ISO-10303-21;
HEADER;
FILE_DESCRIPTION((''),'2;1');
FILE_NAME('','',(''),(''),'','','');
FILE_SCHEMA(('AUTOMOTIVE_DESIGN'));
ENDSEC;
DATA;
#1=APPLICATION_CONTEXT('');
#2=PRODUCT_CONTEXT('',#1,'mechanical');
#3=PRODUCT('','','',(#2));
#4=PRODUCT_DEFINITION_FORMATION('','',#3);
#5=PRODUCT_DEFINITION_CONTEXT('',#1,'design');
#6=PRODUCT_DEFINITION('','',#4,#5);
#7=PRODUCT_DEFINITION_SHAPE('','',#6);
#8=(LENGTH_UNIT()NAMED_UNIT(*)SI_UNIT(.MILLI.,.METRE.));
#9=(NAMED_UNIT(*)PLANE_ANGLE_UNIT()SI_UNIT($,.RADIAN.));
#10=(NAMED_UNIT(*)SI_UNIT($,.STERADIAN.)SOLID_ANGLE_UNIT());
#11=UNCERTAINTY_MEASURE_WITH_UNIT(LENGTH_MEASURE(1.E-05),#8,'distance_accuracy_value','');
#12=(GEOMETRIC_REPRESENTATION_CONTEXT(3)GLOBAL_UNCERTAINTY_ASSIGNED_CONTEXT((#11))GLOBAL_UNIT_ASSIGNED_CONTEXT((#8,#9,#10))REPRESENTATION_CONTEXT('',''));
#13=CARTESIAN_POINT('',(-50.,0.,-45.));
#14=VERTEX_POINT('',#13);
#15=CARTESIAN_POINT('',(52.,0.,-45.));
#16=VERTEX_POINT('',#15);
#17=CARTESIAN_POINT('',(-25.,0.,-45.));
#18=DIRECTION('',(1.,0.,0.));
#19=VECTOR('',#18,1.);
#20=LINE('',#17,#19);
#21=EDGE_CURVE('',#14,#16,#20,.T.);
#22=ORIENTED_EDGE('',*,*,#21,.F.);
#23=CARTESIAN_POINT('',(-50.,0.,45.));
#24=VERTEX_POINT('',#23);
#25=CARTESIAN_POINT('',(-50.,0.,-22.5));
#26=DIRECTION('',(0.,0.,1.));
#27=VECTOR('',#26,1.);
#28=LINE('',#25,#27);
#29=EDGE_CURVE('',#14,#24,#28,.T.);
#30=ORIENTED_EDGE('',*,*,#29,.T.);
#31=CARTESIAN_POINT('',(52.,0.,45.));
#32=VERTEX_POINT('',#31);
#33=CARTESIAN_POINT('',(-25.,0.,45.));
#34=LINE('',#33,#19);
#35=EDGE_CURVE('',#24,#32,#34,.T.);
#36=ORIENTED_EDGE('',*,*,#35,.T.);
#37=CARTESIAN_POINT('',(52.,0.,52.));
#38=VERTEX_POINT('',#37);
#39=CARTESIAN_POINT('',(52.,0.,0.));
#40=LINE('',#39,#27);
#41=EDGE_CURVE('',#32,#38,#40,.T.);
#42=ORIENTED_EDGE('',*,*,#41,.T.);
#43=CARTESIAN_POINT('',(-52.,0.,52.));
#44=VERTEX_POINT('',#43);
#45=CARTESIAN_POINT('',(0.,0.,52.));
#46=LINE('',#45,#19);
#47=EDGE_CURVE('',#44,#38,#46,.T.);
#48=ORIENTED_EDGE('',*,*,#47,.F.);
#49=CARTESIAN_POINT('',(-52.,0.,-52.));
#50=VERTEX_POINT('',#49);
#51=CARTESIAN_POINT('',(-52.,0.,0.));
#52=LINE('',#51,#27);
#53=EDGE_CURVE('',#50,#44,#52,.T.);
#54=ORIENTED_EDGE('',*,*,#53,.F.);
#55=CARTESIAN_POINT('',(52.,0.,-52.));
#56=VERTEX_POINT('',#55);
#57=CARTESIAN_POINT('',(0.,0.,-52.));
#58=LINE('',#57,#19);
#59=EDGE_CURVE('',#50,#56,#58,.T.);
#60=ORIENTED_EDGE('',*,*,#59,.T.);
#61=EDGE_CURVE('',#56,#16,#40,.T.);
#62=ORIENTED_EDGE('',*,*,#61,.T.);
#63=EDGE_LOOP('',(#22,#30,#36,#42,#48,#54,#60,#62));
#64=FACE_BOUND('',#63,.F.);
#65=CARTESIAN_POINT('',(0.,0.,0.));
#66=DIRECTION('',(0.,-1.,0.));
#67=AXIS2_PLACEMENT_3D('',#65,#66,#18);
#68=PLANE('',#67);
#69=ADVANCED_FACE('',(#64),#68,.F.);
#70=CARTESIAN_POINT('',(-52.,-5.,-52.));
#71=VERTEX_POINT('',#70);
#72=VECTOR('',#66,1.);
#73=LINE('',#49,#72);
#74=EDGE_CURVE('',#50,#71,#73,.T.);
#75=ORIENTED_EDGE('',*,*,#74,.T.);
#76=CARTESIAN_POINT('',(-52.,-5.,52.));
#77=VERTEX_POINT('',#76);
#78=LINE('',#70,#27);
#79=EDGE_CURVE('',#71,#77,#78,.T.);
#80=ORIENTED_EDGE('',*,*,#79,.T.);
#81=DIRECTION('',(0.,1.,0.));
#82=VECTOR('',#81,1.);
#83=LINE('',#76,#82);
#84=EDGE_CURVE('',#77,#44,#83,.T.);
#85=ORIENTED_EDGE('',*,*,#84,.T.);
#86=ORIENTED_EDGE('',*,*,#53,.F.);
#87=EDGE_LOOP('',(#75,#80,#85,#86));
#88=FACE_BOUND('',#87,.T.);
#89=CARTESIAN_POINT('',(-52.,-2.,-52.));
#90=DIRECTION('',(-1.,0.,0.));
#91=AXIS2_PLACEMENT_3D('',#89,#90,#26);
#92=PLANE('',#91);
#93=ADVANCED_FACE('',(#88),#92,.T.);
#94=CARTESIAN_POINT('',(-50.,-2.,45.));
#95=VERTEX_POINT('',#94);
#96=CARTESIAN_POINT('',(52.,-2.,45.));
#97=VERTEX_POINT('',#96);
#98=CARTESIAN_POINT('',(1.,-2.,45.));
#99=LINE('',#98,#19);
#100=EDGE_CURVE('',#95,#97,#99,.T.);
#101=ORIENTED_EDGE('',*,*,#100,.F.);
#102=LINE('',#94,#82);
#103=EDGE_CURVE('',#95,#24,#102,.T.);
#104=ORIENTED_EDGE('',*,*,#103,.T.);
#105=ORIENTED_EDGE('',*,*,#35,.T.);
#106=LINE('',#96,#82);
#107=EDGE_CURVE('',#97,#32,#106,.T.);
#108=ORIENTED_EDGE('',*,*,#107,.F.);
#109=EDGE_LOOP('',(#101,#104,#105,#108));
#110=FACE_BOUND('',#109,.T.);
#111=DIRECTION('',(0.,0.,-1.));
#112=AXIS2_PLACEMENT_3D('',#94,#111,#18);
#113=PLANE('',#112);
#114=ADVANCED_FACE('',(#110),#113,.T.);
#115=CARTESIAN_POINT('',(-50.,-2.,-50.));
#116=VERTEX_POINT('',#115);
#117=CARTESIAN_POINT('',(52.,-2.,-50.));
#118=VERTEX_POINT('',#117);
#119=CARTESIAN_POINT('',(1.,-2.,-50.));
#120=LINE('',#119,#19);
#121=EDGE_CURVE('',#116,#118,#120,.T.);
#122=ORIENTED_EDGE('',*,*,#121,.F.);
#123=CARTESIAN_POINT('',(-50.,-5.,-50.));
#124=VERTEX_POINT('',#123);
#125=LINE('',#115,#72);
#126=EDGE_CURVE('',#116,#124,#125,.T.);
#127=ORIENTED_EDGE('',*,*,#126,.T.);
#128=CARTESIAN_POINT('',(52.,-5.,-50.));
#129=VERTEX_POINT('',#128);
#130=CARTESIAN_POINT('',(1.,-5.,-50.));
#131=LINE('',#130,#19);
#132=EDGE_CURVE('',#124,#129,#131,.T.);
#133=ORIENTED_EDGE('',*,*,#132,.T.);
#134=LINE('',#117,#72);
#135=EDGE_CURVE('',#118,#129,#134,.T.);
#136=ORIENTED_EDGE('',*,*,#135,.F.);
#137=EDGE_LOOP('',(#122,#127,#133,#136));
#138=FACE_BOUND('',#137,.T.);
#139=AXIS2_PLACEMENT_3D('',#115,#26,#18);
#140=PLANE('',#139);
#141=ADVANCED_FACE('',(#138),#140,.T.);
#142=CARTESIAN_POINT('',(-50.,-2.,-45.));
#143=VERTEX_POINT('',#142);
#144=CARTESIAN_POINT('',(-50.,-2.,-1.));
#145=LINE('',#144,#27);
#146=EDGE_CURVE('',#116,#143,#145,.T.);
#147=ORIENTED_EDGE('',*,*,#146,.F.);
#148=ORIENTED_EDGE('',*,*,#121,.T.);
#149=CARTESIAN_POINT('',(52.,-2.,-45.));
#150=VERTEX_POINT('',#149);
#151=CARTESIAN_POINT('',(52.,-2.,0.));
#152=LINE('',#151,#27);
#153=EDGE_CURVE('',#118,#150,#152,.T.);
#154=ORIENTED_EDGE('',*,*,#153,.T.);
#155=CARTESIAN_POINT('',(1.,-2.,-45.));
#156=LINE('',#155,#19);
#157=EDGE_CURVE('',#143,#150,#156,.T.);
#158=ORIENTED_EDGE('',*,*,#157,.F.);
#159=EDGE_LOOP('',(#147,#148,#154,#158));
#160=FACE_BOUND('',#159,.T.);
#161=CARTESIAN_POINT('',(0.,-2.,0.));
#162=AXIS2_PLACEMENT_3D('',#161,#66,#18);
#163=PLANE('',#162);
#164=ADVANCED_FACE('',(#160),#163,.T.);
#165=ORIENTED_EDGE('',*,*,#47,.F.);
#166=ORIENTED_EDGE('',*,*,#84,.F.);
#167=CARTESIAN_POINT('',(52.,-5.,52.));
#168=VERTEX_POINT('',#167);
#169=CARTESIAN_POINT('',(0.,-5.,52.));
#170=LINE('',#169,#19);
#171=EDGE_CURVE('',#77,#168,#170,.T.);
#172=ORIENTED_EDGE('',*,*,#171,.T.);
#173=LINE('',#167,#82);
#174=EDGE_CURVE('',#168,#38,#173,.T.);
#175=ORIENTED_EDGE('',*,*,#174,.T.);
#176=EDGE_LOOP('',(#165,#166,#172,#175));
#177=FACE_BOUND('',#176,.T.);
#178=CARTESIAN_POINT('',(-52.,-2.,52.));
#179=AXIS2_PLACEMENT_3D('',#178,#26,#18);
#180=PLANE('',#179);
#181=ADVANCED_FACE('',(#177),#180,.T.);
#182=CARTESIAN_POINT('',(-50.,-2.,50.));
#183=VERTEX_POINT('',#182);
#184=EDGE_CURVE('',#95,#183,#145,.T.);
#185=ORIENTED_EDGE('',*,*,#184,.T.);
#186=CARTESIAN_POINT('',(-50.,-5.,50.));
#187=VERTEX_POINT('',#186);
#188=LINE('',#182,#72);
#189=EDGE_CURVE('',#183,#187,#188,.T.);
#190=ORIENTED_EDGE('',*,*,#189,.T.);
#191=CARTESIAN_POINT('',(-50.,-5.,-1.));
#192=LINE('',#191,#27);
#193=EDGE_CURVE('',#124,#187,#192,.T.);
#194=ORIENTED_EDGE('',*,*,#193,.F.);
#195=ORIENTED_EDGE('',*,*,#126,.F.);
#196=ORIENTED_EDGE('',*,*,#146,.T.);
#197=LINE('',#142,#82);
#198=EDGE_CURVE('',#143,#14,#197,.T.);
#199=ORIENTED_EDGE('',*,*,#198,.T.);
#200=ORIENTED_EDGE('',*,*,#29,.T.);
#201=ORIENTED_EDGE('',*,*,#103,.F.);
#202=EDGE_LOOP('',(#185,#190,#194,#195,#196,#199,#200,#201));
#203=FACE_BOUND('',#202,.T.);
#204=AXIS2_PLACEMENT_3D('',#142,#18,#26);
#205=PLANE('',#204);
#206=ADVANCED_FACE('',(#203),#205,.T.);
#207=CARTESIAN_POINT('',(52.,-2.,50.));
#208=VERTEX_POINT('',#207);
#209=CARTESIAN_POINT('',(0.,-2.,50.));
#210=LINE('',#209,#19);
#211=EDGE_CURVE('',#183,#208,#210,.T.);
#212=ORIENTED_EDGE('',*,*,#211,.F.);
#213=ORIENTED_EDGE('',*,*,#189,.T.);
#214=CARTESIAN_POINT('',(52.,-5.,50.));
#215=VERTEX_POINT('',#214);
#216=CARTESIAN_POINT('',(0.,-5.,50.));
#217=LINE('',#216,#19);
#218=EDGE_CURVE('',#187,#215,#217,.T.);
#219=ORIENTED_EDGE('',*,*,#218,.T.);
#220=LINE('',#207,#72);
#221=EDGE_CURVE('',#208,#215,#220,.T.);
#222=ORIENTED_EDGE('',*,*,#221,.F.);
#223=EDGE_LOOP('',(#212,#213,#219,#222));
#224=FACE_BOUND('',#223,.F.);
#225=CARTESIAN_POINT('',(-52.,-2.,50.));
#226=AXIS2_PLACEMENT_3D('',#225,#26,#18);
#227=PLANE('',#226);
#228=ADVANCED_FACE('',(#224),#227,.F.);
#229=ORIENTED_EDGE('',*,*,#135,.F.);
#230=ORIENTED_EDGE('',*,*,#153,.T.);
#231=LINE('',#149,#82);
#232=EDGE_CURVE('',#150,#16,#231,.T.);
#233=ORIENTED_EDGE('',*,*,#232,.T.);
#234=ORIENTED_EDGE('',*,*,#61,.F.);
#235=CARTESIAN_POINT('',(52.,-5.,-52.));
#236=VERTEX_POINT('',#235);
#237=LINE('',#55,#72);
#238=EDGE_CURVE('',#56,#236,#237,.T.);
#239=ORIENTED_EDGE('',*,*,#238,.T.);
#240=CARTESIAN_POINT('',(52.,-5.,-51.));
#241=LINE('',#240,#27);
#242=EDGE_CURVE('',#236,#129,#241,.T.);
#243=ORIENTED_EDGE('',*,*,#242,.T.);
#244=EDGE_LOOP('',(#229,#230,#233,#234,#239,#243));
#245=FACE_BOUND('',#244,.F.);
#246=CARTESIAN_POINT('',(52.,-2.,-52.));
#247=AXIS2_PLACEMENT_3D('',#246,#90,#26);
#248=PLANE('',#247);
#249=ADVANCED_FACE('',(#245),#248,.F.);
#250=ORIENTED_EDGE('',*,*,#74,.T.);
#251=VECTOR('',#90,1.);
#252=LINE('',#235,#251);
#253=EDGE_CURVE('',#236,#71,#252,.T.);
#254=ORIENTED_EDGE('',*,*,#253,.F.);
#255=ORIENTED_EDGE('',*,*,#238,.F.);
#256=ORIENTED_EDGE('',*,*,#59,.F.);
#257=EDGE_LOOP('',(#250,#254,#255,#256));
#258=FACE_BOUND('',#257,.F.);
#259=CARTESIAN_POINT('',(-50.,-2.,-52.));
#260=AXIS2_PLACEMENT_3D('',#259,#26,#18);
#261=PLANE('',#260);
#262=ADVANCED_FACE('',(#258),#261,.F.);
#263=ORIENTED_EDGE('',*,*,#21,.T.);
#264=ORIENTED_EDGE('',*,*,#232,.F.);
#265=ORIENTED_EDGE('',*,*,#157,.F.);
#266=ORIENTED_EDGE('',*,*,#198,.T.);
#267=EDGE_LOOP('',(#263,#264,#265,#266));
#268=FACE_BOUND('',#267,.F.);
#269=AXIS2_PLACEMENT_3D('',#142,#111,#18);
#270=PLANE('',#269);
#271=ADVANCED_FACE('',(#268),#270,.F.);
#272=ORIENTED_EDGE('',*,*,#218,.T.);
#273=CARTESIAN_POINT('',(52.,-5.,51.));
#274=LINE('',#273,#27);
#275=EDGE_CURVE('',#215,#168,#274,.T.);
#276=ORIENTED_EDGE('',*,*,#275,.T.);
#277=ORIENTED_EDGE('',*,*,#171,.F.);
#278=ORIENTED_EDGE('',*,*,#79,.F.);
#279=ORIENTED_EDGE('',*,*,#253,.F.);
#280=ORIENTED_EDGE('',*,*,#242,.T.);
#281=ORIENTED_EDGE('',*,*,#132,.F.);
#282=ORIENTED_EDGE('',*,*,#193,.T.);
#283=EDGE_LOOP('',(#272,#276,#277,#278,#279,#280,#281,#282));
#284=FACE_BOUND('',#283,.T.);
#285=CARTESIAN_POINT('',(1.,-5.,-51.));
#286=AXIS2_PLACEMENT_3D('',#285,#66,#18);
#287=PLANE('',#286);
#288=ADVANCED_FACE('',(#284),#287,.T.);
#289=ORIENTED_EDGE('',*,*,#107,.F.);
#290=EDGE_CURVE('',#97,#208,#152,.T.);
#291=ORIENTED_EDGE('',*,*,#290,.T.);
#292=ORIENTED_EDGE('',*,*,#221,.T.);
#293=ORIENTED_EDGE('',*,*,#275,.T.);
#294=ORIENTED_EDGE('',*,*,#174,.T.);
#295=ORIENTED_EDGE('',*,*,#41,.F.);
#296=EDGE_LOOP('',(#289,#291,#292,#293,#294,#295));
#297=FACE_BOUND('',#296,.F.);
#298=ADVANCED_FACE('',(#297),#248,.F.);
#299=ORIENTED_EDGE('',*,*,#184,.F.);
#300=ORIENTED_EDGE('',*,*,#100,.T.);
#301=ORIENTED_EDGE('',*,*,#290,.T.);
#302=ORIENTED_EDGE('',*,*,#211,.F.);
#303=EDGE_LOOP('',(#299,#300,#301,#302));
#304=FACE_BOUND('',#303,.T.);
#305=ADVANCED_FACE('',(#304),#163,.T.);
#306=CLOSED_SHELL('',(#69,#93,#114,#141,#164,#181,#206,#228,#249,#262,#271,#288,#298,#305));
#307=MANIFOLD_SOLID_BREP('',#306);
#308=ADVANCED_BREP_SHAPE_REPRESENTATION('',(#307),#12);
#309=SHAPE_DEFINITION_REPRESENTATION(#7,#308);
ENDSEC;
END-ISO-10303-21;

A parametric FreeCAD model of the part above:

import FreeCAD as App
import Part
import Sketcher
from FreeCAD import Vector

doc = App.newDocument("Part")
body = doc.addObject("PartDesign::Body", "Body")

# Sketch on XZ plane
sketch1 = body.newObject("Sketcher::SketchObject", "Sketch")
sketch1.AttachmentSupport = (doc.getObject("XZ_Plane"), [""])
sketch1.MapMode = "FlatFace"
sketch1.addGeometry([
    Part.LineSegment(Vector(-52, 52, 0), Vector(-52, -52, 0)),
    Part.LineSegment(Vector(-52, -52, 0), Vector(52, -52, 0)),
    Part.LineSegment(Vector(52, -52, 0), Vector(52, 52, 0)),
    Part.LineSegment(Vector(52, 52, 0), Vector(-52, 52, 0)),
], False)
sketch1.addConstraint([
    Sketcher.Constraint("Coincident", 0, 2, 1, 1),
    Sketcher.Constraint("Coincident", 1, 2, 2, 1),
    Sketcher.Constraint("Coincident", 2, 2, 3, 1),
    Sketcher.Constraint("Coincident", 3, 2, 0, 1),
    Sketcher.Constraint("Vertical", 0),
    Sketcher.Constraint("Horizontal", 1),
    Sketcher.Constraint("Vertical", 2),
    Sketcher.Constraint("Horizontal", 3),
    Sketcher.Constraint("Symmetric", 0, 2, 2, 2, -1, 1),
    Sketcher.Constraint("Equal", 3, 0),
    Sketcher.Constraint("DistanceX", 1, 1, 1, 2, 104.0),
])
pad1 = body.newObject("PartDesign::Pad", "Pad")
pad1.Profile = sketch1
pad1.Length = 2

# Sketch on XZ plane
sketch2 = body.newObject("Sketcher::SketchObject", "Sketch001")
sketch2.AttachmentSupport = (doc.getObject("XZ_Plane"), [""])
sketch2.MapMode = "FlatFace"
sketch2.AttachmentOffset = App.Placement(Vector(0, 0, 2), App.Rotation())
sketch2.addGeometry([
    Part.LineSegment(Vector(-52, 52, 0), Vector(-52, 50, 0)),
    Part.LineSegment(Vector(-52, 50, 0), Vector(52, 50, 0)),
    Part.LineSegment(Vector(52, 50, 0), Vector(52, 52, 0)),
    Part.LineSegment(Vector(52, 52, 0), Vector(-52, 52, 0)),
], False)
sketch2.addConstraint([
    Sketcher.Constraint("Coincident", 0, 2, 1, 1),
    Sketcher.Constraint("Coincident", 1, 2, 2, 1),
    Sketcher.Constraint("Coincident", 2, 2, 3, 1),
    Sketcher.Constraint("Coincident", 3, 2, 0, 1),
    Sketcher.Constraint("Vertical", 0),
    Sketcher.Constraint("Horizontal", 1),
    Sketcher.Constraint("Vertical", 2),
    Sketcher.Constraint("Horizontal", 3),
    Sketcher.Constraint("DistanceX", 1, 1, 1, 2, 104.0),
    Sketcher.Constraint("DistanceY", 0, 2, 0, 1, 2.0),
    Sketcher.Constraint("DistanceX", 0, 2, -1, 1, 52.0),
    Sketcher.Constraint("DistanceY", -1, 1, 0, 2, 50.0),
])
pad2 = body.newObject("PartDesign::Pad", "Pad001")
pad2.Profile = sketch2
pad2.Length = 3

# Sketch on XZ plane
sketch3 = body.newObject("Sketcher::SketchObject", "Sketch002")
sketch3.AttachmentSupport = (doc.getObject("XZ_Plane"), [""])
sketch3.MapMode = "FlatFace"
sketch3.AttachmentOffset = App.Placement(Vector(0, 0, 2), App.Rotation())
sketch3.addGeometry([
    Part.LineSegment(Vector(-52, 50, 0), Vector(-52, -52, 0)),
    Part.LineSegment(Vector(-52, -52, 0), Vector(-50, -52, 0)),
    Part.LineSegment(Vector(-50, -52, 0), Vector(-50, 50, 0)),
    Part.LineSegment(Vector(-50, 50, 0), Vector(-52, 50, 0)),
], False)
sketch3.addConstraint([
    Sketcher.Constraint("Coincident", 0, 2, 1, 1),
    Sketcher.Constraint("Coincident", 1, 2, 2, 1),
    Sketcher.Constraint("Coincident", 2, 2, 3, 1),
    Sketcher.Constraint("Coincident", 3, 2, 0, 1),
    Sketcher.Constraint("Vertical", 0),
    Sketcher.Constraint("Horizontal", 1),
    Sketcher.Constraint("Vertical", 2),
    Sketcher.Constraint("Horizontal", 3),
    Sketcher.Constraint("DistanceX", 1, 1, 1, 2, 2.0),
    Sketcher.Constraint("DistanceY", 0, 2, 0, 1, 102.0),
    Sketcher.Constraint("DistanceX", 0, 2, -1, 1, 52.0),
    Sketcher.Constraint("DistanceY", 0, 2, -1, 1, 52.0),
])
pad3 = body.newObject("PartDesign::Pad", "Pad002")
pad3.Profile = sketch3
pad3.Length = 3

# Sketch on XZ plane
sketch4 = body.newObject("Sketcher::SketchObject", "Sketch003")
sketch4.AttachmentSupport = (doc.getObject("XZ_Plane"), [""])
sketch4.MapMode = "FlatFace"
sketch4.AttachmentOffset = App.Placement(Vector(0, 0, 2), App.Rotation())
sketch4.addGeometry([
    Part.LineSegment(Vector(-50, -50, 0), Vector(-50, -52, 0)),
    Part.LineSegment(Vector(-50, -52, 0), Vector(52, -52, 0)),
    Part.LineSegment(Vector(52, -52, 0), Vector(52, -50, 0)),
    Part.LineSegment(Vector(52, -50, 0), Vector(-50, -50, 0)),
], False)
sketch4.addConstraint([
    Sketcher.Constraint("Coincident", 0, 2, 1, 1),
    Sketcher.Constraint("Coincident", 1, 2, 2, 1),
    Sketcher.Constraint("Coincident", 2, 2, 3, 1),
    Sketcher.Constraint("Coincident", 3, 2, 0, 1),
    Sketcher.Constraint("Vertical", 0),
    Sketcher.Constraint("Horizontal", 1),
    Sketcher.Constraint("Vertical", 2),
    Sketcher.Constraint("Horizontal", 3),
    Sketcher.Constraint("DistanceX", 1, 1, 1, 2, 102.0),
    Sketcher.Constraint("DistanceY", 0, 2, 0, 1, 2.0),
    Sketcher.Constraint("DistanceX", 0, 2, -1, 1, 50.0),
    Sketcher.Constraint("DistanceY", 0, 2, -1, 1, 52.0),
])
pad4 = body.newObject("PartDesign::Pad", "Pad003")
pad4.Profile = sketch4
pad4.Length = 3

# Sketch on XZ plane
sketch5 = body.newObject("Sketcher::SketchObject", "Sketch004")
sketch5.AttachmentSupport = (doc.getObject("XZ_Plane"), [""])
sketch5.MapMode = "FlatFace"
sketch5.AttachmentOffset = App.Placement(Vector(0, 0, 2), App.Rotation())
sketch5.addGeometry([
    Part.LineSegment(Vector(-50, 45, 0), Vector(-50, -45, 0)),
    Part.LineSegment(Vector(-50, -45, 0), Vector(52, -45, 0)),
    Part.LineSegment(Vector(52, -45, 0), Vector(52, 45, 0)),
    Part.LineSegment(Vector(52, 45, 0), Vector(-50, 45, 0)),
], False)
sketch5.addConstraint([
    Sketcher.Constraint("Coincident", 0, 2, 1, 1),
    Sketcher.Constraint("Coincident", 1, 2, 2, 1),
    Sketcher.Constraint("Coincident", 2, 2, 3, 1),
    Sketcher.Constraint("Coincident", 3, 2, 0, 1),
    Sketcher.Constraint("Vertical", 0),
    Sketcher.Constraint("Horizontal", 1),
    Sketcher.Constraint("Vertical", 2),
    Sketcher.Constraint("Horizontal", 3),
    Sketcher.Constraint("DistanceX", 1, 1, 1, 2, 102.0),
    Sketcher.Constraint("DistanceY", 0, 2, 0, 1, 90.0),
    Sketcher.Constraint("DistanceX", 0, 2, -1, 1, 50.0),
    Sketcher.Constraint("DistanceY", 0, 2, -1, 1, 45.0),
])
pocket1 = body.newObject("PartDesign::Pocket", "Pocket")
pocket1.Profile = sketch5
pocket1.Length = 25

doc.recompute()
